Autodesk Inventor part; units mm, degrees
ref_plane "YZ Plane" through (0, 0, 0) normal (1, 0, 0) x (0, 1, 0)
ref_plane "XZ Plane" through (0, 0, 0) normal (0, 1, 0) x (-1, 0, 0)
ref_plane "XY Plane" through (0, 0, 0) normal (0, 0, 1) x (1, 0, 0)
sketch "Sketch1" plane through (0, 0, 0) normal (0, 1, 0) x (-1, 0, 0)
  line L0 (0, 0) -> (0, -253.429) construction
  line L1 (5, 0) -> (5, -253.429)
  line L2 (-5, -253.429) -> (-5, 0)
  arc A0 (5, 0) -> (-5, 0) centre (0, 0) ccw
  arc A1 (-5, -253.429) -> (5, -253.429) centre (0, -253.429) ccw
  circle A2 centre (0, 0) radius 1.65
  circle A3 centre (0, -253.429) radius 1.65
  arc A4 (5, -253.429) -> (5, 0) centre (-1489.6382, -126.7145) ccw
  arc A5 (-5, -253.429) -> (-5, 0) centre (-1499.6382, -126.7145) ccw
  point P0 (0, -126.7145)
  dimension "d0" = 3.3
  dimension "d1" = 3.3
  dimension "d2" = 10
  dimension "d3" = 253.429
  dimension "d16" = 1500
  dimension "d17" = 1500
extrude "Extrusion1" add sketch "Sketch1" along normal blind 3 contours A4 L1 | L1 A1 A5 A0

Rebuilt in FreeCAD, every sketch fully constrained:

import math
import FreeCAD as App
import Part
import Sketcher
Q = App.Units.Quantity

doc = App.newDocument("Part")
body = doc.addObject("PartDesign::Body", "Body")

sketch1 = doc.addObject("Sketcher::SketchObject", "Sketch")
body.addObject(sketch1)
sketch1.AttachmentSupport = (doc.XZ_Plane, [""])
sketch1.MapMode = "FlatFace"
sketch1.addGeometry([
    Part.ArcOfCircle(Part.Circle(App.Vector(1489.6382, -126.7145, 0), App.Vector(0, 0, 1), 1499.999971), math.radians(175.154087), math.radians(184.845913)),
    Part.ArcOfCircle(Part.Circle(App.Vector(0, 0, 0), App.Vector(0, 0, 1), 5), math.radians(0), math.radians(180)),
    Part.ArcOfCircle(Part.Circle(App.Vector(1499.6382, -126.7145, 0), App.Vector(0, 0, 1), 1499.999971), math.radians(175.154087), math.radians(184.845913)),
    Part.ArcOfCircle(Part.Circle(App.Vector(0, -253.429, 0), App.Vector(0, 0, 1), 5), math.radians(180), math.radians(360)),
    Part.Circle(App.Vector(0, 0, 0), App.Vector(0, 0, 1), 1.65),
    Part.Circle(App.Vector(0, -253.429, 0), App.Vector(0, 0, 1), 1.65),
], False)
sketch1.addConstraint([
    Sketcher.Constraint("Coincident", 0, 1, 1, 2),
    Sketcher.Constraint("Coincident", 1, 1, 2, 1),
    Sketcher.Constraint("Coincident", 2, 2, 3, 2),
    Sketcher.Constraint("Coincident", 3, 1, 0, 2),
    Sketcher.Constraint("Coincident", 1, 3, -1, 1),
    Sketcher.Constraint("Coincident", 4, 3, -1, 1),
    Sketcher.Constraint("Coincident", 5, 3, 3, 3),
    Sketcher.Constraint("Equal", 0, 2),
    Sketcher.Constraint("Equal", 1, 3),
    Sketcher.Constraint("Equal", 4, 5),
    Sketcher.Constraint("Symmetric", 2, 2, 3, 1, -2),
    Sketcher.Constraint("PointOnObject", 1, 1, -1),
    Sketcher.Constraint("Horizontal", 0, 3, 2, 3),
    Sketcher.Constraint("Radius", 0, Q("1500 mm")),
    Sketcher.Constraint("Radius", 1, Q("5 mm")),
    Sketcher.Constraint("Diameter", 4, Q("3.3 mm")),
    Sketcher.Constraint("DistanceY", 3, 3, -1, 1, Q("253.429 mm")),
    Sketcher.Constraint("DistanceY", 3, 1, -1, 1, Q("253.429 mm")),
])
pad1 = doc.addObject("PartDesign::Pad", "Pad")
body.addObject(pad1)
pad1.Profile = sketch1
pad1.Length = 3
pad1.Reversed = True

doc.recompute()
